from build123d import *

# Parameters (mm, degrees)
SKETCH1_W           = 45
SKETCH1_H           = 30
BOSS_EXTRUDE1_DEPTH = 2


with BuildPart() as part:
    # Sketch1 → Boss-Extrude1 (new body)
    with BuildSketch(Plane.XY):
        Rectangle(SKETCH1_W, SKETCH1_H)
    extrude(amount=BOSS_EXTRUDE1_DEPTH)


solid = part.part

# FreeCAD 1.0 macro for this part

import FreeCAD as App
import Part
import Sketcher

doc = App.newDocument("Part")
body = doc.addObject("PartDesign::Body", "Body")

# Sketch on XY plane
sketch1 = body.newObject("Sketcher::SketchObject", "Sketch")
sketch1.AttachmentSupport = (doc.getObject("XY_Plane"), [""])
sketch1.MapMode = "FlatFace"
sketch1.addGeometry([
    Part.LineSegment(App.Vector(-22.5, 15, 0), App.Vector(-22.5, -15, 0)),
    Part.LineSegment(App.Vector(-22.5, -15, 0), App.Vector(22.5, -15, 0)),
    Part.LineSegment(App.Vector(22.5, -15, 0), App.Vector(22.5, 15, 0)),
    Part.LineSegment(App.Vector(22.5, 15, 0), App.Vector(-22.5, 15, 0)),
], False)
sketch1.addConstraint([
    Sketcher.Constraint("Coincident", 0, 2, 1, 1),
    Sketcher.Constraint("Coincident", 1, 2, 2, 1),
    Sketcher.Constraint("Coincident", 2, 2, 3, 1),
    Sketcher.Constraint("Coincident", 3, 2, 0, 1),
    Sketcher.Constraint("Vertical", 0),
    Sketcher.Constraint("Horizontal", 1),
    Sketcher.Constraint("Vertical", 2),
    Sketcher.Constraint("Horizontal", 3),
    Sketcher.Constraint("Symmetric", 0, 2, 2, 2, -1, 1),
    Sketcher.Constraint("DistanceX", 1, 1, 1, 2, 45.0),
    Sketcher.Constraint("DistanceY", 0, 2, 0, 1, 30.0),
])
pad1 = body.newObject("PartDesign::Pad", "Pad")
pad1.Profile = sketch1
pad1.Length = 2

doc.recompute()
